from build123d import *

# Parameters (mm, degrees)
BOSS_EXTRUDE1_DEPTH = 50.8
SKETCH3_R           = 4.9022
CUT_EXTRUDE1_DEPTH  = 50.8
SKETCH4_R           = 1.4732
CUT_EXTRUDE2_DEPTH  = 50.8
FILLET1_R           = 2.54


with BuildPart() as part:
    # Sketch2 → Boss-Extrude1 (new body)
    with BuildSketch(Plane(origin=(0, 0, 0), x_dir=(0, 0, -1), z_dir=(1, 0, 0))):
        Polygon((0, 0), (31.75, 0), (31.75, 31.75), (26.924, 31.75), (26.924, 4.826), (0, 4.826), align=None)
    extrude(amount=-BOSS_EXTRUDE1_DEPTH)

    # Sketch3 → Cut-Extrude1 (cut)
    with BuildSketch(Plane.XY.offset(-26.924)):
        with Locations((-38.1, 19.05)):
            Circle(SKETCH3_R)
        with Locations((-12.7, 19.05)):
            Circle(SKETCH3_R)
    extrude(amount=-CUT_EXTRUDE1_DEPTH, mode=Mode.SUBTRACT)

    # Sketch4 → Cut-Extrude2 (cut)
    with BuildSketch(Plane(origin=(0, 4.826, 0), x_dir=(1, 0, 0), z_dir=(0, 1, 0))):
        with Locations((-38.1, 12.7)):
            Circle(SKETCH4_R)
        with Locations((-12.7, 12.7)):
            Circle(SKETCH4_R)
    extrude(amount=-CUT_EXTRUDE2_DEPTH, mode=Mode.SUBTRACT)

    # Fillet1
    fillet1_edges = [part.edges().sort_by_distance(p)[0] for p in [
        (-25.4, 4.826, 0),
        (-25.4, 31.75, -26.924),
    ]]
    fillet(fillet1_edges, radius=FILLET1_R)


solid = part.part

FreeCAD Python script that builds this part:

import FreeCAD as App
import Part
import Sketcher
from FreeCAD import Vector
Q = App.Units.Quantity


def edges_at(feature, points):
    """Names of the edges that pass closest to the given points."""
    edges = feature.Shape.Edges
    near = lambda p: min(range(len(edges)), key=lambda i: edges[i].distToShape(Part.Vertex(*p))[0])
    return sorted({f"Edge{near(p) + 1}" for p in points})


def add_polygon(sketch, points):
    """Adds a closed chain of lines whose ends are joined by coincident constraints."""
    first, n = sketch.GeometryCount, len(points)
    for a, b in zip(points, points[1:] + points[:1]):
        sketch.addGeometry(Part.LineSegment(App.Vector(*a, 0), App.Vector(*b, 0)), False)
    for i in range(n):
        sketch.addConstraint(Sketcher.Constraint("Coincident", first + i, 2, first + (i + 1) % n, 1))

doc = App.newDocument("Part")
body = doc.addObject("PartDesign::Body", "Body")

# Sketch on YZ plane
sketch1 = body.newObject("Sketcher::SketchObject", "Sketch")
sketch1.AttachmentSupport = (doc.getObject("YZ_Plane"), [""])
sketch1.MapMode = "FlatFace"
add_polygon(sketch1, [(0, 0), (0, -31.75), (31.75, -31.75), (31.75, -26.924), (4.826, -26.924), (4.826, 0)])  # lines 0-5
sketch1.addConstraint([
    Sketcher.Constraint("Vertical", 0),
    Sketcher.Constraint("Horizontal", 1),
    Sketcher.Constraint("Vertical", 2),
    Sketcher.Constraint("Horizontal", 3),
    Sketcher.Constraint("Vertical", 4),
    Sketcher.Constraint("Horizontal", 5),
    Sketcher.Constraint("Coincident", 5, 2, -1, 1),
    Sketcher.Constraint("Equal", 1, 0),
    Sketcher.Constraint("Equal", 5, 2),
    Sketcher.Constraint("DistanceX", 1, 1, 1, 2, Q("1.25 in")),
    Sketcher.Constraint("DistanceX", 3, 2, 3, 1, Q("1.06 in")),
])
pad1 = body.newObject("PartDesign::Pad", "Pad")
pad1.Profile = sketch1
pad1.Length = Q("2 in")
pad1.Reversed = True

# Sketch on XY plane
sketch2 = body.newObject("Sketcher::SketchObject", "Sketch001")
sketch2.AttachmentSupport = (doc.getObject("XY_Plane"), [""])
sketch2.MapMode = "FlatFace"
sketch2.AttachmentOffset = App.Placement(Vector(0, 0, -1.06 * 25.4), App.Rotation())
sketch2.addGeometry([
    Part.Circle(Vector(-38.1, 19.05, 0), Vector(0, 0, 1), 4.9022),
    Part.Circle(Vector(-12.7, 19.05, 0), Vector(0, 0, 1), 4.9022),
], False)
sketch2.addConstraint([
    Sketcher.Constraint("Equal", 0, 1),
    Sketcher.Constraint("Horizontal", 0, 3, 1, 3),
    Sketcher.Constraint("Diameter", 0, Q("0.386 in")),
    Sketcher.Constraint("DistanceX", 0, 3, 1, 3, Q("1 in")),
    Sketcher.Constraint("DistanceX", 0, 3, -1, 1, Q("1.5 in")),
    Sketcher.Constraint("DistanceY", -1, 1, 0, 3, Q("0.75 in")),
])
pocket1 = body.newObject("PartDesign::Pocket", "Pocket")
pocket1.Profile = sketch2
pocket1.Length = Q("2 in")

# Sketch on XZ plane
sketch3 = body.newObject("Sketcher::SketchObject", "Sketch002")
sketch3.AttachmentSupport = (doc.getObject("XZ_Plane"), [""])
sketch3.MapMode = "FlatFace"
sketch3.AttachmentOffset = App.Placement(Vector(0, 0, -0.19 * 25.4), App.Rotation())
sketch3.addGeometry([
    Part.Circle(Vector(-38.1, -12.7, 0), Vector(0, 0, 1), 1.4732),
    Part.Circle(Vector(-12.7, -12.7, 0), Vector(0, 0, 1), 1.4732),
], False)
sketch3.addConstraint([
    Sketcher.Constraint("Equal", 0, 1),
    Sketcher.Constraint("Horizontal", 0, 3, 1, 3),
    Sketcher.Constraint("Diameter", 0, Q("0.116 in")),
    Sketcher.Constraint("DistanceX", 0, 3, 1, 3, Q("1 in")),
    Sketcher.Constraint("DistanceX", 0, 3, -1, 1, Q("1.5 in")),
    Sketcher.Constraint("DistanceY", 0, 3, -1, 1, Q("0.5 in")),
])
pocket2 = body.newObject("PartDesign::Pocket", "Pocket001")
pocket2.Profile = sketch3
pocket2.Length = Q("2 in")
pocket2.Reversed = True
doc.recompute()

fillet = body.newObject("PartDesign::Fillet", "Fillet")
fillet.Base = (pocket2, edges_at(pocket2, [(-25.4, 4.826, 0), (-25.4, 31.75, -26.924)]))
fillet.Radius = Q("0.1 in")

doc.recompute()
